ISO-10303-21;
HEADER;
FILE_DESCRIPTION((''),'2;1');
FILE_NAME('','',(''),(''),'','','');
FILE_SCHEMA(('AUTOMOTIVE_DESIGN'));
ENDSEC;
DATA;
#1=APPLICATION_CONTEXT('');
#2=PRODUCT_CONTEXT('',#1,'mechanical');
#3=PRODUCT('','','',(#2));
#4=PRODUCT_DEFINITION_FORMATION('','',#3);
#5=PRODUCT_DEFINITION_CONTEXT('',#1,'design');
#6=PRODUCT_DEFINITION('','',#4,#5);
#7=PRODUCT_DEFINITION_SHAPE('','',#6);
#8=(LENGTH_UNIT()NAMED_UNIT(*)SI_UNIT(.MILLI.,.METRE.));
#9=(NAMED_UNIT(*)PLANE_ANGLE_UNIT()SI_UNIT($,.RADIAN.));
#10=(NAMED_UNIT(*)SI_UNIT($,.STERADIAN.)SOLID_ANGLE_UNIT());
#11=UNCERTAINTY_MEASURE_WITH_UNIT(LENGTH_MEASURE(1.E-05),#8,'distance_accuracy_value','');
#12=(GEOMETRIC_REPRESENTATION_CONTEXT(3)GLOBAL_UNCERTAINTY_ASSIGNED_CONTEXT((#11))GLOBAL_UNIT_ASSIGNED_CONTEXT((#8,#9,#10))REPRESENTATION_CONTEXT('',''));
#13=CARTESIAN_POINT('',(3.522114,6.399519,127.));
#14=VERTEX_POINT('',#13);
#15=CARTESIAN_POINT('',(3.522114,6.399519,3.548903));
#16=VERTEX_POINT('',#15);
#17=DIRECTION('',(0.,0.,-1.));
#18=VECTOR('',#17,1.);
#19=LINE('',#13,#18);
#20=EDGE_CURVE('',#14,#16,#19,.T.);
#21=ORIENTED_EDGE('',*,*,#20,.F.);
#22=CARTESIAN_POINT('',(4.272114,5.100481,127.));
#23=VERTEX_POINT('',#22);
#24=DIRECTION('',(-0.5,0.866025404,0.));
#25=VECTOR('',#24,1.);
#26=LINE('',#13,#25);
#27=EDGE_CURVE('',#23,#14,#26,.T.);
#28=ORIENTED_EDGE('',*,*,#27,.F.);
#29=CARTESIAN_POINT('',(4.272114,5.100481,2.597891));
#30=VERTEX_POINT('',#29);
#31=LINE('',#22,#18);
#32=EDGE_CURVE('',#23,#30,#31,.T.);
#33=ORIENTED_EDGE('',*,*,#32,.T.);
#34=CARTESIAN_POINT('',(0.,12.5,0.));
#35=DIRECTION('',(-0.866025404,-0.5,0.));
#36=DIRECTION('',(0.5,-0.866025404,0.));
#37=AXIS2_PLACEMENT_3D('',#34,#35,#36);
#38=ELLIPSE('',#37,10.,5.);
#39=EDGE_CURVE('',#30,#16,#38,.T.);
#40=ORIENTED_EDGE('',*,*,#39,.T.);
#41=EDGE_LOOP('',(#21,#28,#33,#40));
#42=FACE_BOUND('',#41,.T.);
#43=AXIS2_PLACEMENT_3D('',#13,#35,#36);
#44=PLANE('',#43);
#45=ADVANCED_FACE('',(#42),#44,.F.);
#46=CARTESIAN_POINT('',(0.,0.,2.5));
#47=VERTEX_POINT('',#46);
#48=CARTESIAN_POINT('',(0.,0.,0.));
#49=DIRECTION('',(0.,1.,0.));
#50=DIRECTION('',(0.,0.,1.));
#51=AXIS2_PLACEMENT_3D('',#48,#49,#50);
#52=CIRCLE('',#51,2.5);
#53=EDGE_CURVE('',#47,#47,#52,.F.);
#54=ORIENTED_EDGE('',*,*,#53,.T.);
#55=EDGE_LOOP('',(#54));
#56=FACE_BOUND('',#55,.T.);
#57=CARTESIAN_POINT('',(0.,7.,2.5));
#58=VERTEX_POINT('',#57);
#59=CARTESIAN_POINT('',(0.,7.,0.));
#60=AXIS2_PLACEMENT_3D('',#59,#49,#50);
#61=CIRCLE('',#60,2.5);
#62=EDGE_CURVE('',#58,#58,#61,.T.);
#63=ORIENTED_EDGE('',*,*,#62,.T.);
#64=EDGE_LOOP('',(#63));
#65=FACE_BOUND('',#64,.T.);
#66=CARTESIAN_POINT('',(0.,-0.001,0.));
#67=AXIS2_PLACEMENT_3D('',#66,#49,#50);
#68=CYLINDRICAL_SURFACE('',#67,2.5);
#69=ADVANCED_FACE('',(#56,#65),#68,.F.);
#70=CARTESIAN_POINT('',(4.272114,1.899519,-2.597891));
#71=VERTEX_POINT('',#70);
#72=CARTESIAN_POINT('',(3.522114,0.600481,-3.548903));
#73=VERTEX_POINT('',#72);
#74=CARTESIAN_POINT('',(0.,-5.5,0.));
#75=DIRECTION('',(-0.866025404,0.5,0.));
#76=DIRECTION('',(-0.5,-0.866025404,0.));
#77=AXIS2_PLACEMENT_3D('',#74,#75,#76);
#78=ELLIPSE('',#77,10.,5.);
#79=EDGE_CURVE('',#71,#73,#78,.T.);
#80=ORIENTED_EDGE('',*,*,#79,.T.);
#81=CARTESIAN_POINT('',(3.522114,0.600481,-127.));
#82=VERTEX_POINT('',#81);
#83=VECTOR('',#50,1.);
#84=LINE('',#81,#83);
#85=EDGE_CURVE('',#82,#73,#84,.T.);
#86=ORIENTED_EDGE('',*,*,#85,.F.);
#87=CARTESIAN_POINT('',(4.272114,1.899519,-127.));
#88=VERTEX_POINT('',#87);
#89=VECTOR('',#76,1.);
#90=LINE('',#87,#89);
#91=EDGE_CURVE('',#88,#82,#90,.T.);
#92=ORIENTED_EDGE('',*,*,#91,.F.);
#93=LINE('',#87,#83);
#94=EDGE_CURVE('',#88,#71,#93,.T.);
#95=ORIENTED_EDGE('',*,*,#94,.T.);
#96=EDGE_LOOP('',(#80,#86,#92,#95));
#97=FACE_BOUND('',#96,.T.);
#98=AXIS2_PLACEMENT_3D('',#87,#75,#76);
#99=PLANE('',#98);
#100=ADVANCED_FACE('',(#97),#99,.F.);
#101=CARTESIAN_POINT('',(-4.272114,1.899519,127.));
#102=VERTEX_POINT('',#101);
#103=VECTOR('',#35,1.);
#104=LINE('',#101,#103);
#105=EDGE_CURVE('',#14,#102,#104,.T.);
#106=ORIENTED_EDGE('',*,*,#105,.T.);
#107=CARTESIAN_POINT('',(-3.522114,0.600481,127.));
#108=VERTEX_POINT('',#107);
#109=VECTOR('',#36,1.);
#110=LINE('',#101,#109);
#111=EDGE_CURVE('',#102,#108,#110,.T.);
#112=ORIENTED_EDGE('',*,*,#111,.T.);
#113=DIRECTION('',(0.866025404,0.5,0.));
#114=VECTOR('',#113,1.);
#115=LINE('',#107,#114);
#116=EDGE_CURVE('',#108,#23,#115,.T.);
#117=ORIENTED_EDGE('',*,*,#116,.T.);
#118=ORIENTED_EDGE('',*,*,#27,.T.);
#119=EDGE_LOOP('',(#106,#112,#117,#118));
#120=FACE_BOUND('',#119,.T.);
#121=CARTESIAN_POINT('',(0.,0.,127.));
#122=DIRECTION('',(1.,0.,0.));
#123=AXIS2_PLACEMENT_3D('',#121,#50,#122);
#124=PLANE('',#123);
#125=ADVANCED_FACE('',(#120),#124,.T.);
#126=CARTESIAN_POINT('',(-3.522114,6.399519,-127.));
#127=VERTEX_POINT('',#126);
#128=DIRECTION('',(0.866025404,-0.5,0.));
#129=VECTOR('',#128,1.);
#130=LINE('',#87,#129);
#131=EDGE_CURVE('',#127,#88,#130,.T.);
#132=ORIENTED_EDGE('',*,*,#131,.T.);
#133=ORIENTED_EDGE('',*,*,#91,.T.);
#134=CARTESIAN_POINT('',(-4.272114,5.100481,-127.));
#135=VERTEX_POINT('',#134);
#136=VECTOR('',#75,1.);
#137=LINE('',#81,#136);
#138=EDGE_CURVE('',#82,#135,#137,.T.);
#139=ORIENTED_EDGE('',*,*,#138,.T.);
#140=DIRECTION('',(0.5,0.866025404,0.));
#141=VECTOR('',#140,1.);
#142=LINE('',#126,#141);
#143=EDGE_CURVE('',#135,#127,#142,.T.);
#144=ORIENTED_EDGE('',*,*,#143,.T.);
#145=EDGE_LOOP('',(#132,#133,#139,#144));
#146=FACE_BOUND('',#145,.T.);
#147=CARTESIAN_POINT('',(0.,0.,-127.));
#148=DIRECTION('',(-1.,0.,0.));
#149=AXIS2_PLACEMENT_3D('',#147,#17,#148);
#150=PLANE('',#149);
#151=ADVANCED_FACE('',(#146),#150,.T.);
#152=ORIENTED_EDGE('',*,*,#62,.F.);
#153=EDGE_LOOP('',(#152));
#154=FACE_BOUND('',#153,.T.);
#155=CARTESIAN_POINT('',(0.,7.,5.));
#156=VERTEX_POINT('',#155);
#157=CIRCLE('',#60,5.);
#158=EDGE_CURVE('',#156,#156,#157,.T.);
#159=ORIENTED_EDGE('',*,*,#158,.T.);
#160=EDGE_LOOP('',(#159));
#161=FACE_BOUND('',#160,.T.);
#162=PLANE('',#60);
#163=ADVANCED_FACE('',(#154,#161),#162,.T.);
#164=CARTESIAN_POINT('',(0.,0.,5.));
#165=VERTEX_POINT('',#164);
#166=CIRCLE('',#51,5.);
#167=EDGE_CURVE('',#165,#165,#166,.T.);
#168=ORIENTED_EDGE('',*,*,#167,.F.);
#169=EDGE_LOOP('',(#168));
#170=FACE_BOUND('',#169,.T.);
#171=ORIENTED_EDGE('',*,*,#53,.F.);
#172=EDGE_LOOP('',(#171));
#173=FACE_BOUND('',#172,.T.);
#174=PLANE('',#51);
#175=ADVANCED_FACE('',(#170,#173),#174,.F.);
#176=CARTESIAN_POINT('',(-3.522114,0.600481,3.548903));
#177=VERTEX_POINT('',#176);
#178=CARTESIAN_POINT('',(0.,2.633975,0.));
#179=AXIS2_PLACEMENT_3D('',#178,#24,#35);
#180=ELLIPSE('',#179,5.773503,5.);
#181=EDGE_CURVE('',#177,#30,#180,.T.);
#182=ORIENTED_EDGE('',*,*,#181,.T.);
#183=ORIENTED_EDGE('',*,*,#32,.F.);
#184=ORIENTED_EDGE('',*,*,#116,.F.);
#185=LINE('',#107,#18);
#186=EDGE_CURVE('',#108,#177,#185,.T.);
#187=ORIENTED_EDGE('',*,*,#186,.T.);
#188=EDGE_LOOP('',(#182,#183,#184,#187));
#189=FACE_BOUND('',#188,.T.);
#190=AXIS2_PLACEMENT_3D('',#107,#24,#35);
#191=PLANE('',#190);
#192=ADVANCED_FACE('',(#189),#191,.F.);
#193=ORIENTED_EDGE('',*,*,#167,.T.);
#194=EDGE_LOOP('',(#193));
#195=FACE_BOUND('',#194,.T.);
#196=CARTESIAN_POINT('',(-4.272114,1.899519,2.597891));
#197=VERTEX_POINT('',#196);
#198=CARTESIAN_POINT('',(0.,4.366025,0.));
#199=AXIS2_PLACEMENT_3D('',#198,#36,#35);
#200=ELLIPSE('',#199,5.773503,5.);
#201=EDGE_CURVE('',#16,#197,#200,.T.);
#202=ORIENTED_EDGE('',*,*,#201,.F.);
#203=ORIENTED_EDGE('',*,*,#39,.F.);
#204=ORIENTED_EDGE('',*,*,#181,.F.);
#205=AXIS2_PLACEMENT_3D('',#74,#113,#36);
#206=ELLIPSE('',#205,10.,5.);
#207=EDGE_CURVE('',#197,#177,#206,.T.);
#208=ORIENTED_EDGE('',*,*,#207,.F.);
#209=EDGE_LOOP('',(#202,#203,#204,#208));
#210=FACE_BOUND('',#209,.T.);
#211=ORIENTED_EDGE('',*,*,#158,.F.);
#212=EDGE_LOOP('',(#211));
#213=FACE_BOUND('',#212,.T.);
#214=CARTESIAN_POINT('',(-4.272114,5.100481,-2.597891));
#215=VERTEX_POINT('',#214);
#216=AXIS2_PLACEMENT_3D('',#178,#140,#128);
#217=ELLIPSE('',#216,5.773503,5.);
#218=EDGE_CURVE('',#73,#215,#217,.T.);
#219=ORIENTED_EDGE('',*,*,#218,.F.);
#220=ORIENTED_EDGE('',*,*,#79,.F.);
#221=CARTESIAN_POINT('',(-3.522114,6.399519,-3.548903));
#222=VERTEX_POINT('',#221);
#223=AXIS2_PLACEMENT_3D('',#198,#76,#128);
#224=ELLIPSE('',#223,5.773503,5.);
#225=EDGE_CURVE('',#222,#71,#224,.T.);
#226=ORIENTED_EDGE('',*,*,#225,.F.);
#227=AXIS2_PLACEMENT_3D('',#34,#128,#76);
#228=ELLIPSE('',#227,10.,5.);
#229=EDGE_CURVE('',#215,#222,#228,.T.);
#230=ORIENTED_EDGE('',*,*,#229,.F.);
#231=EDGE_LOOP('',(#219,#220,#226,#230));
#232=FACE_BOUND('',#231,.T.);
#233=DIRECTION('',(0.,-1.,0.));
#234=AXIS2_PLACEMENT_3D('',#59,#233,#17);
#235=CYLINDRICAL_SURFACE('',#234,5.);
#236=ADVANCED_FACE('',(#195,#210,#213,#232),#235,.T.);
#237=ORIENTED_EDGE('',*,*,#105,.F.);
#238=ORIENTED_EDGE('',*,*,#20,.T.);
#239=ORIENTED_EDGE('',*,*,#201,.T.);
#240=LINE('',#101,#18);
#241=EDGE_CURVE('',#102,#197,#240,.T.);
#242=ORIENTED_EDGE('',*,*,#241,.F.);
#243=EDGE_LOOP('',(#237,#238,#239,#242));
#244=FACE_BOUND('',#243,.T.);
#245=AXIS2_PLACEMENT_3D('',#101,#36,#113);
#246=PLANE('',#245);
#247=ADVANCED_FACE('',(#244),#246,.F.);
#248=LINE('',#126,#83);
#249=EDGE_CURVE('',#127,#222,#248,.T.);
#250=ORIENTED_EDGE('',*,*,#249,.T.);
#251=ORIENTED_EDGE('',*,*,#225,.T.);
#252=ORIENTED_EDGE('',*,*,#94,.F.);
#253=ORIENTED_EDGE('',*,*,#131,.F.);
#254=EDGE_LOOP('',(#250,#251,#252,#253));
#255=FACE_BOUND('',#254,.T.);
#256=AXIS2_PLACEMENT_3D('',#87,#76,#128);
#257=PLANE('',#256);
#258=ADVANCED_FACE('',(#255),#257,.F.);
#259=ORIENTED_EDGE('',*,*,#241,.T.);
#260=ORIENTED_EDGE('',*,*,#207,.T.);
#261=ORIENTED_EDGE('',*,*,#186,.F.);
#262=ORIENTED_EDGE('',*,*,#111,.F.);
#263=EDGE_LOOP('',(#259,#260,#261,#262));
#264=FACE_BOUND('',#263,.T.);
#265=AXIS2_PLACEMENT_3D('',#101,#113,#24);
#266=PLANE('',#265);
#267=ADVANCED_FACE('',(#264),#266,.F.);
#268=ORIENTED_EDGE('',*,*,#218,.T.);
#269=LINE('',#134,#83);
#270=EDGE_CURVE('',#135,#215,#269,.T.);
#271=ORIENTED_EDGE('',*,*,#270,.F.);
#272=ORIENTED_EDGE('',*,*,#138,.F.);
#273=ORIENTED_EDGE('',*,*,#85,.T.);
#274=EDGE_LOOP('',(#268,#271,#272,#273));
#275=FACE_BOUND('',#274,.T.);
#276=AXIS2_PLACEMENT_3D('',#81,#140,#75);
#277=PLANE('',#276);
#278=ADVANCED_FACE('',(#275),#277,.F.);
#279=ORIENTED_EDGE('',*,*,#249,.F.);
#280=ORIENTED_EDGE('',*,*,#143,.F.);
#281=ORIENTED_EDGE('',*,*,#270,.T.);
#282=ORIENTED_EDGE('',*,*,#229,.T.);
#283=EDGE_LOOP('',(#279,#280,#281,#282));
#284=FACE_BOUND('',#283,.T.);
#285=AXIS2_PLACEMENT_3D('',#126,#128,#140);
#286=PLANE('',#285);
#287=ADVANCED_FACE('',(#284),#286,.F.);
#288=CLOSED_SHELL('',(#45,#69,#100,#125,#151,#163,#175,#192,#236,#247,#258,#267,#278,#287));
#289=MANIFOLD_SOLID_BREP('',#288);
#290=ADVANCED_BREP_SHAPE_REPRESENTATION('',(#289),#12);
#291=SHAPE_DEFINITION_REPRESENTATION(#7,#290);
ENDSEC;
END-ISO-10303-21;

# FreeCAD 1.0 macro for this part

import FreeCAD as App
import Part
import Sketcher
Q = App.Units.Quantity

doc = App.newDocument("Part")
body = doc.addObject("PartDesign::Body", "Body")

# Sketch on XZ plane
sketch1 = body.newObject("Sketcher::SketchObject", "Sketch")
sketch1.AttachmentSupport = (doc.getObject("XZ_Plane"), [""])
sketch1.MapMode = "FlatFace"
sketch1.addGeometry(Part.Circle(App.Vector(0, 0, 0), App.Vector(0, 0, 1), 5), False)
sketch1.addConstraint([
    Sketcher.Constraint("Coincident", 0, 3, -1, 1),
    Sketcher.Constraint("Diameter", 0, 10.0),
])
pad1 = body.newObject("PartDesign::Pad", "Pad")
pad1.Profile = sketch1
pad1.Length = 7
pad1.Reversed = True

# Sketch on XY plane
sketch2 = body.newObject("Sketcher::SketchObject", "Sketch001")
sketch2.AttachmentSupport = (doc.getObject("XY_Plane"), [""])
sketch2.MapMode = "FlatFace"
sketch2.addGeometry([
    Part.LineSegment(App.Vector(3.5, 6.4, 0), App.Vector(-4.3, 1.9, 0)),
    Part.LineSegment(App.Vector(-4.3, 1.9, 0), App.Vector(-3.5, 0.6, 0)),
    Part.LineSegment(App.Vector(-3.5, 0.6, 0), App.Vector(4.3, 5.1, 0)),
    Part.LineSegment(App.Vector(4.3, 5.1, 0), App.Vector(3.5, 6.4, 0)),
], False)
sketch2.addConstraint([
    Sketcher.Constraint("Coincident", 0, 2, 1, 1),
    Sketcher.Constraint("Coincident", 1, 2, 2, 1),
    Sketcher.Constraint("Coincident", 2, 2, 3, 1),
    Sketcher.Constraint("Coincident", 3, 2, 0, 1),
    Sketcher.Constraint("Perpendicular", 0, 1),
    Sketcher.Constraint("Perpendicular", 1, 2),
    Sketcher.Constraint("Perpendicular", 2, 3),
    Sketcher.Constraint("Angle", 0, Q("-150 deg")),
    Sketcher.Constraint("Distance", 0, 9.0),
    Sketcher.Constraint("Distance", 1, 1.5),
    Sketcher.Constraint("DistanceY", -1, 1, 0, 2, 1.899519),
    Sketcher.Constraint("DistanceX", 0, 2, -1, 1, 4.272114),
])
pad2 = body.newObject("PartDesign::Pad", "Pad001")
pad2.Profile = sketch2
pad2.Length = 127
doc.recompute()

polarpattern = body.newObject("PartDesign::PolarPattern", "PolarPattern")
polarpattern.Originals = [pad2]
polarpattern.Axis = (doc.getObject("Y_Axis"), [""])
polarpattern.Angle = 360
polarpattern.Occurrences = 2
body.Tip = polarpattern

# Sketch on XZ plane
sketch3 = body.newObject("Sketcher::SketchObject", "Sketch002")
sketch3.AttachmentSupport = (doc.getObject("XZ_Plane"), [""])
sketch3.MapMode = "FlatFace"
sketch3.AttachmentOffset = App.Placement(App.Vector(0, 0, -7), App.Rotation())
sketch3.addGeometry(Part.Circle(App.Vector(0, 0, 0), App.Vector(0, 0, 1), 2.5), False)
sketch3.addConstraint([
    Sketcher.Constraint("Coincident", 0, 3, -1, 1),
    Sketcher.Constraint("Diameter", 0, 5.0),
])
pocket1 = body.newObject("PartDesign::Pocket", "Pocket")
pocket1.Profile = sketch3
pocket1.Type = "UpToFirst"
pocket1.Reversed = True

doc.recompute()
